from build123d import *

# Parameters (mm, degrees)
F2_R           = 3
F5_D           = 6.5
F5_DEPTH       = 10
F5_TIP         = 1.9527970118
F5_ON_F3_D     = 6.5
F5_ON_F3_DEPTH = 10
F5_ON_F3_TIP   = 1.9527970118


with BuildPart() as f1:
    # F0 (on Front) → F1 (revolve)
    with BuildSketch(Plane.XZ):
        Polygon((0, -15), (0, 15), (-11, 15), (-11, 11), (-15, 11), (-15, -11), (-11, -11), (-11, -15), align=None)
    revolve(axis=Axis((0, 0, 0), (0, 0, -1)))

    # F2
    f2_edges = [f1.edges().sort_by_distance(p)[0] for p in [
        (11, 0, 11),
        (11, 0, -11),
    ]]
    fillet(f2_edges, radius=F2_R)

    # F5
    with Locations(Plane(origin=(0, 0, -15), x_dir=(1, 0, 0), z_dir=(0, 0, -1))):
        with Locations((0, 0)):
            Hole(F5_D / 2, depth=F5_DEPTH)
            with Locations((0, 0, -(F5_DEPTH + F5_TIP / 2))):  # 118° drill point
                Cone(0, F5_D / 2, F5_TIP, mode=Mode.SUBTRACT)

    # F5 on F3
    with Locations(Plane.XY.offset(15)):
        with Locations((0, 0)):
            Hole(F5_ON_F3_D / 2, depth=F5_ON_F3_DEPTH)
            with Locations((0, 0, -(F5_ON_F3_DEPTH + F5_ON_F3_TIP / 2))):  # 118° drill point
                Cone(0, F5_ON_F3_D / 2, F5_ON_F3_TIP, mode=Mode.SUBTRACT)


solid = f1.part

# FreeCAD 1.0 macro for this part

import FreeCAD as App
import Part
import Sketcher

V = App.Vector
Q = App.Units.Quantity


def edges_at(feature, points):
    """Names of the edges that pass closest to the given points."""
    edges = feature.Shape.Edges
    near = lambda p: min(range(len(edges)), key=lambda i: edges[i].distToShape(Part.Vertex(*p))[0])
    return sorted({f"Edge{near(p) + 1}" for p in points})

doc = App.newDocument("Part")
body = doc.addObject("PartDesign::Body", "Body")

# Sketch on XZ plane
sketch1 = body.newObject("Sketcher::SketchObject", "Sketch")
sketch1.AttachmentSupport = (doc.getObject("XZ_Plane"), [""])
sketch1.MapMode = "FlatFace"
sketch1.addGeometry(Part.LineSegment(V(0, -15, 0), V(0, 15, 0)), False)
sketch1.addGeometry(Part.LineSegment(V(0, 15, 0), V(-11, 15, 0)), False)
sketch1.addGeometry(Part.LineSegment(V(-11, 15, 0), V(-11, 11, 0)), False)
sketch1.addGeometry(Part.LineSegment(V(-11, 11, 0), V(-15, 11, 0)), False)
sketch1.addGeometry(Part.LineSegment(V(-15, 11, 0), V(-15, -11, 0)), False)
sketch1.addGeometry(Part.LineSegment(V(-15, -11, 0), V(-11, -11, 0)), False)
sketch1.addGeometry(Part.LineSegment(V(-11, -11, 0), V(-11, -15, 0)), False)
sketch1.addGeometry(Part.LineSegment(V(-11, -15, 0), V(0, -15, 0)), False)
sketch1.addConstraint(Sketcher.Constraint("Coincident", 0, 2, 1, 1))
sketch1.addConstraint(Sketcher.Constraint("Coincident", 1, 2, 2, 1))
sketch1.addConstraint(Sketcher.Constraint("Coincident", 2, 2, 3, 1))
sketch1.addConstraint(Sketcher.Constraint("Coincident", 3, 2, 4, 1))
sketch1.addConstraint(Sketcher.Constraint("Coincident", 4, 2, 5, 1))
sketch1.addConstraint(Sketcher.Constraint("Coincident", 5, 2, 6, 1))
sketch1.addConstraint(Sketcher.Constraint("Coincident", 6, 2, 7, 1))
sketch1.addConstraint(Sketcher.Constraint("Coincident", 7, 2, 0, 1))
sketch1.addConstraint(Sketcher.Constraint("Vertical", 0))
sketch1.addConstraint(Sketcher.Constraint("Horizontal", 1))
sketch1.addConstraint(Sketcher.Constraint("Vertical", 2))
sketch1.addConstraint(Sketcher.Constraint("Horizontal", 3))
sketch1.addConstraint(Sketcher.Constraint("Vertical", 4))
sketch1.addConstraint(Sketcher.Constraint("Horizontal", 5))
sketch1.addConstraint(Sketcher.Constraint("Vertical", 6))
sketch1.addConstraint(Sketcher.Constraint("Horizontal", 7))
sketch1.addConstraint(Sketcher.Constraint("Symmetric", 0, 2, 7, 2, -1, 1))
sketch1.addConstraint(Sketcher.Constraint("Symmetric", 2, 2, 5, 2, -1))
sketch1.addConstraint(Sketcher.Constraint("Equal", 5, 2))
sketch1.addConstraint(Sketcher.Constraint("DistanceX", 1, 2, 1, 1, Q("11 mm")))
sketch1.addConstraint(Sketcher.Constraint("DistanceX", 3, 2, 3, 1, Q("4 mm")))
sketch1.addConstraint(Sketcher.Constraint("DistanceY", 0, 1, 0, 2, Q("30 mm")))
revolution = body.newObject("PartDesign::Revolution", "Revolution")
revolution.Profile = sketch1
revolution.ReferenceAxis = (sketch1, ["V_Axis"])
revolution.Angle = 360
doc.recompute()

fillet = body.newObject("PartDesign::Fillet", "Fillet")
fillet.Base = (revolution, edges_at(revolution, [(11, 0, 11), (11, 0, -11)]))
fillet.Radius = 3

# Sketch on XY plane
sketch2 = body.newObject("Sketcher::SketchObject", "Sketch001")
sketch2.AttachmentSupport = (doc.getObject("XY_Plane"), [""])
sketch2.MapMode = "FlatFace"
sketch2.AttachmentOffset = App.Placement(V(0, 0, -15), App.Rotation())
sketch2.addGeometry(Part.Circle(V(0, 0, 0), V(0, 0, 1), 3.2), False)
sketch2.addConstraint(Sketcher.Constraint("Coincident", 0, 3, -1, 1))
sketch2.addConstraint(Sketcher.Constraint("Diameter", 0, Q("6.5 mm")))
doc.recompute()
hole = body.newObject("PartDesign::Hole", "Hole")
hole.Profile = sketch2
hole.ThreadType = "None"
hole.Diameter = 6.5
hole.DepthType = "Dimension"
hole.Depth = 10
hole.DrillPoint = "Angled"
hole.DrillPointAngle = 118
hole.Reversed = True

# Sketch on XY plane
sketch3 = body.newObject("Sketcher::SketchObject", "Sketch002")
sketch3.AttachmentSupport = (doc.getObject("XY_Plane"), [""])
sketch3.MapMode = "FlatFace"
sketch3.AttachmentOffset = App.Placement(V(0, 0, 15), App.Rotation())
sketch3.addGeometry(Part.Circle(V(0, 0, 0), V(0, 0, 1), 3.2), False)
sketch3.addConstraint(Sketcher.Constraint("Coincident", 0, 3, -1, 1))
sketch3.addConstraint(Sketcher.Constraint("Diameter", 0, Q("6.5 mm")))
doc.recompute()
hole2 = body.newObject("PartDesign::Hole", "Hole001")
hole2.Profile = sketch3
hole2.ThreadType = "None"
hole2.Diameter = 6.5
hole2.DepthType = "Dimension"
hole2.Depth = 10
hole2.DrillPoint = "Angled"
hole2.DrillPointAngle = 118

doc.recompute()
